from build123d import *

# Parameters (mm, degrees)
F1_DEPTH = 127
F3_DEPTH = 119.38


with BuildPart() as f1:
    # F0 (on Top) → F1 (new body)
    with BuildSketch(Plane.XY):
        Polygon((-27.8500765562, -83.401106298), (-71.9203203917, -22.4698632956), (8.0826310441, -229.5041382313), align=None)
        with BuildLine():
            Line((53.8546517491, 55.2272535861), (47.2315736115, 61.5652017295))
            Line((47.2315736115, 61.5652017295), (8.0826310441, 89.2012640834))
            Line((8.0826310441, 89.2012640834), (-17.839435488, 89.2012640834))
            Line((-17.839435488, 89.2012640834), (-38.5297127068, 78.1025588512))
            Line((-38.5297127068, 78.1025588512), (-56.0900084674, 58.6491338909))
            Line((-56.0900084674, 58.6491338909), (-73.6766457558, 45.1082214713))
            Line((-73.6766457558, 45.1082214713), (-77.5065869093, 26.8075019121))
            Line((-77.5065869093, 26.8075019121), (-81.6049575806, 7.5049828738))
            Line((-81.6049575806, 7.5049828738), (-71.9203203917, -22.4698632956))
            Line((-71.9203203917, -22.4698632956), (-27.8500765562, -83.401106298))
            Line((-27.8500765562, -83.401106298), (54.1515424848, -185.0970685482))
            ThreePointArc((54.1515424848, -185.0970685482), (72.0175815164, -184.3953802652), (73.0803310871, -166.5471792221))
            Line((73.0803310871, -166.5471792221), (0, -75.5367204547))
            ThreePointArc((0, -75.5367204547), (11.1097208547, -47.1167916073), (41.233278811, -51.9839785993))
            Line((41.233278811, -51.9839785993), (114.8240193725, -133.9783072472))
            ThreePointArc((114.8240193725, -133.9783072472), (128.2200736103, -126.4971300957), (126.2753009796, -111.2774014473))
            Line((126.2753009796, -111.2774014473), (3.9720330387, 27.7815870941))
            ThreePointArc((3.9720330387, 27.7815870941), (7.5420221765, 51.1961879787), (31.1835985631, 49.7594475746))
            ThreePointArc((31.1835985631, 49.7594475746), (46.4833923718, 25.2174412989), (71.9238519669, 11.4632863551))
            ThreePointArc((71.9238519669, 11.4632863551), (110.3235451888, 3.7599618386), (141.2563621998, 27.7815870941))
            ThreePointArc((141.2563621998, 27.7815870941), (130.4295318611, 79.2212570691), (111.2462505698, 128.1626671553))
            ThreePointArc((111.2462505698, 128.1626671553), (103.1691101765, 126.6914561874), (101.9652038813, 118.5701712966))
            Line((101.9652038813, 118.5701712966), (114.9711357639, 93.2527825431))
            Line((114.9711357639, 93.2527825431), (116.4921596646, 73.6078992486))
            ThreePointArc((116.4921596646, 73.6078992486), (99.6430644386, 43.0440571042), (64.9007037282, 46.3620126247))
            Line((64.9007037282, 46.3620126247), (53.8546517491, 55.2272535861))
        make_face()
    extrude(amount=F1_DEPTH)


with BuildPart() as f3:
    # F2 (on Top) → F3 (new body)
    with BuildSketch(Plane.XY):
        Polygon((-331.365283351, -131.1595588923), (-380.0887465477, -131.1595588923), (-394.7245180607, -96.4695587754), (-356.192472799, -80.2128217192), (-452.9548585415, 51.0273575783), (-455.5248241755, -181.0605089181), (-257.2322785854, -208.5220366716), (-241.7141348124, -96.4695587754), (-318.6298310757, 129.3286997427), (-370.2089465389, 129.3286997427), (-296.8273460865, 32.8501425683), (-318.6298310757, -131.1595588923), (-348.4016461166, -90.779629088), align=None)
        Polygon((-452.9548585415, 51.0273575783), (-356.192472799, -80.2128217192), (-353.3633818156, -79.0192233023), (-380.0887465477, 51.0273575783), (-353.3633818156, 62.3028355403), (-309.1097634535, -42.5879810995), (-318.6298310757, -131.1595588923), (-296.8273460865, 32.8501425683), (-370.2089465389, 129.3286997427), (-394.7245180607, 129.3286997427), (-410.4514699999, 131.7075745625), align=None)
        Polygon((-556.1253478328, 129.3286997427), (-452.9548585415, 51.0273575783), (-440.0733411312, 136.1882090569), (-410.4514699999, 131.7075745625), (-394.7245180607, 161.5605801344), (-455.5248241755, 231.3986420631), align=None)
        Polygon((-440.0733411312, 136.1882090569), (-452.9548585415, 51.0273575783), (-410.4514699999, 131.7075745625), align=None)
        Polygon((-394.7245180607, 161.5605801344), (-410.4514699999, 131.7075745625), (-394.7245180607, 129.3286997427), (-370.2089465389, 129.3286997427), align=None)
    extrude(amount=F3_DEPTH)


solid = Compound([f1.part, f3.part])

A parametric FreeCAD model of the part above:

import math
import FreeCAD as App
import Part
import Sketcher
Q = App.Units.Quantity


def add_polygon(sketch, points):
    """Adds a closed chain of lines whose ends are joined by coincident constraints."""
    first, n = sketch.GeometryCount, len(points)
    for a, b in zip(points, points[1:] + points[:1]):
        sketch.addGeometry(Part.LineSegment(App.Vector(*a, 0), App.Vector(*b, 0)), False)
    for i in range(n):
        sketch.addConstraint(Sketcher.Constraint("Coincident", first + i, 2, first + (i + 1) % n, 1))

doc = App.newDocument("Part")
body = doc.addObject("PartDesign::Body", "Body")

sketch1 = doc.addObject("Sketcher::SketchObject", "Sketch")
body.addObject(sketch1)
sketch1.AttachmentSupport = (doc.XY_Plane, [""])
sketch1.MapMode = "FlatFace"
sketch1.addGeometry(Part.LineSegment(App.Vector(-72, -22, 0), App.Vector(8, -230, 0)), False)
sketch1.addGeometry(Part.LineSegment(App.Vector(8, -230, 0), App.Vector(-28, -83, 0)), False)
sketch1.addGeometry(Part.LineSegment(App.Vector(-28, -83, 0), App.Vector(54, -185, 0)), False)
sketch1.addGeometry(Part.ArcOfCircle(Part.Circle(App.Vector(63, -175, 0), App.Vector(0, 0, 1), 13), math.radians(-130), math.radians(39)), False)
sketch1.addGeometry(Part.LineSegment(App.Vector(73, -167, 0), App.Vector(0, -76, 0)), False)
sketch1.addGeometry(Part.ArcOfCircle(Part.Circle(App.Vector(23, -68, 0), App.Vector(0, 0, 1), 24), math.radians(42), math.radians(198)), False)
sketch1.addGeometry(Part.LineSegment(App.Vector(41, -52, 0), App.Vector(115, -134, 0)), False)
sketch1.addGeometry(Part.ArcOfCircle(Part.Circle(App.Vector(116, -120, 0), App.Vector(0, 0, 1), 14), math.radians(-95), math.radians(41)), False)
sketch1.addGeometry(Part.LineSegment(App.Vector(126, -111, 0), App.Vector(4, 28, 0)), False)
sketch1.addGeometry(Part.ArcOfCircle(Part.Circle(App.Vector(19, 38, 0), App.Vector(0, 0, 1), 18), math.radians(44), math.radians(214)), False)
sketch1.addGeometry(Part.ArcOfCircle(Part.Circle(App.Vector(85, 66, 0), App.Vector(0, 0, 1), 56), math.radians(-163), math.radians(-104)), False)
sketch1.addGeometry(Part.ArcOfCircle(Part.Circle(App.Vector(100, 50, 0), App.Vector(0, 0, 1), 47), math.radians(-126), math.radians(-28)), False)
sketch1.addGeometry(Part.ArcOfCircle(Part.Circle(App.Vector(-173, -12, 0), App.Vector(0, 0, 1), 317), math.radians(7.13), math.radians(26.16)), False)
sketch1.addGeometry(Part.ArcOfCircle(Part.Circle(App.Vector(108, 122, 0), App.Vector(0, 0, 1), 7), math.radians(65), math.radians(207)), False)
sketch1.addGeometry(Part.LineSegment(App.Vector(102, 119, 0), App.Vector(115, 93, 0)), False)
sketch1.addGeometry(Part.LineSegment(App.Vector(115, 93, 0), App.Vector(116, 74, 0)), False)
sketch1.addGeometry(Part.ArcOfCircle(Part.Circle(App.Vector(85, 71, 0), App.Vector(0, 0, 1), 32), math.radians(-129), math.radians(4)), False)
sketch1.addGeometry(Part.LineSegment(App.Vector(65, 46, 0), App.Vector(54, 55, 0)), False)
sketch1.addGeometry(Part.LineSegment(App.Vector(54, 55, 0), App.Vector(47, 62, 0)), False)
sketch1.addGeometry(Part.LineSegment(App.Vector(47, 62, 0), App.Vector(8, 89, 0)), False)
sketch1.addGeometry(Part.LineSegment(App.Vector(8, 89, 0), App.Vector(-18, 89, 0)), False)
sketch1.addGeometry(Part.LineSegment(App.Vector(-18, 89, 0), App.Vector(-39, 78, 0)), False)
sketch1.addGeometry(Part.LineSegment(App.Vector(-39, 78, 0), App.Vector(-56, 59, 0)), False)
sketch1.addGeometry(Part.LineSegment(App.Vector(-56, 59, 0), App.Vector(-74, 45, 0)), False)
sketch1.addGeometry(Part.LineSegment(App.Vector(-74, 45, 0), App.Vector(-78, 27, 0)), False)
sketch1.addGeometry(Part.LineSegment(App.Vector(-78, 27, 0), App.Vector(-82, 8, 0)), False)
sketch1.addGeometry(Part.LineSegment(App.Vector(-82, 8, 0), App.Vector(-72, -22, 0)), False)
sketch1.addConstraint(Sketcher.Constraint("Coincident", 0, 2, 1, 1))
sketch1.addConstraint(Sketcher.Constraint("Coincident", 1, 2, 2, 1))
sketch1.addConstraint(Sketcher.Constraint("Coincident", 2, 2, 3, 1))
sketch1.addConstraint(Sketcher.Constraint("Tangent", 3, 2, 4, 1))
sketch1.addConstraint(Sketcher.Constraint("Coincident", 4, 2, 5, 2))
sketch1.addConstraint(Sketcher.Constraint("Tangent", 5, 1, 6, 1))
sketch1.addConstraint(Sketcher.Constraint("Coincident", 6, 2, 7, 1))
sketch1.addConstraint(Sketcher.Constraint("Tangent", 7, 2, 8, 1))
sketch1.addConstraint(Sketcher.Constraint("Coincident", 8, 2, 9, 2))
sketch1.addConstraint(Sketcher.Constraint("Coincident", 9, 1, 10, 1))
sketch1.addConstraint(Sketcher.Constraint("Coincident", 10, 2, 11, 1))
sketch1.addConstraint(Sketcher.Constraint("Coincident", 11, 2, 12, 1))
sketch1.addConstraint(Sketcher.Constraint("Coincident", 12, 2, 13, 1))
sketch1.addConstraint(Sketcher.Constraint("Tangent", 13, 2, 14, 1))
sketch1.addConstraint(Sketcher.Constraint("Coincident", 14, 2, 15, 1))
sketch1.addConstraint(Sketcher.Constraint("Tangent", 15, 2, 16, 2))
sketch1.addConstraint(Sketcher.Constraint("Tangent", 16, 1, 17, 1))
sketch1.addConstraint(Sketcher.Constraint("Coincident", 17, 2, 18, 1))
sketch1.addConstraint(Sketcher.Constraint("Coincident", 18, 2, 19, 1))
sketch1.addConstraint(Sketcher.Constraint("Coincident", 19, 2, 20, 1))
sketch1.addConstraint(Sketcher.Constraint("Coincident", 20, 2, 21, 1))
sketch1.addConstraint(Sketcher.Constraint("Coincident", 21, 2, 22, 1))
sketch1.addConstraint(Sketcher.Constraint("Coincident", 22, 2, 23, 1))
sketch1.addConstraint(Sketcher.Constraint("Coincident", 23, 2, 24, 1))
sketch1.addConstraint(Sketcher.Constraint("Coincident", 24, 2, 25, 1))
sketch1.addConstraint(Sketcher.Constraint("Coincident", 25, 2, 26, 1))
sketch1.addConstraint(Sketcher.Constraint("Coincident", 26, 2, 0, 1))
sketch1.addConstraint(Sketcher.Constraint("Horizontal", 20))
sketch1.addConstraint(Sketcher.Constraint("PointOnObject", 4, 2, -2))
sketch1.addConstraint(Sketcher.Constraint("Horizontal", 8, 2, 11, 2))
sketch1.addConstraint(Sketcher.Constraint("Vertical", 0, 2, 19, 2))
sketch1.addConstraint(Sketcher.Constraint("Radius", 12, Q("316.818498 mm")))
sketch1.addConstraint(Sketcher.Constraint("DistanceY", 7, 2, -1, 1, Q("4.3810001 in")))
sketch1.addConstraint(Sketcher.Constraint("Radius", 11, Q("47.063272 mm")))
sketch1.addConstraint(Sketcher.Constraint("Radius", 13, Q("7.047951 mm")))
sketch1.addConstraint(Sketcher.Constraint("Radius", 3, Q("13.316237 mm")))
sketch1.addConstraint(Sketcher.Constraint("Radius", 5, Q("24.289102 mm")))
sketch1.addConstraint(Sketcher.Constraint("Radius", 7, Q("13.701564 mm")))
sketch1.addConstraint(Sketcher.Constraint("Radius", 9, Q("17.561286 mm")))
sketch1.addConstraint(Sketcher.Constraint("Radius", 10, Q("56.491066 mm")))
sketch1.addConstraint(Sketcher.Constraint("Radius", 16, Q("31.789025 mm")))
sketch1.addConstraint(Sketcher.Constraint("DistanceX", 16, 1, 11, 3, Q("1.3637998 in")))
sketch1.addConstraint(Sketcher.Constraint("DistanceX", -1, 1, 7, 2, Q("126.275301 mm")))
sketch1.addConstraint(Sketcher.Constraint("DistanceX", -1, 1, 9, 1, Q("31.183599 mm")))
sketch1.addConstraint(Sketcher.Constraint("DistanceY", -1, 1, 15, 2, Q("73.607899 mm")))
sketch1.addConstraint(Sketcher.Constraint("DistanceY", -1, 1, 18, 2, Q("61.565202 mm")))
sketch1.addConstraint(Sketcher.Constraint("DistanceY", -1, 1, 24, 2, Q("26.807502 mm")))
sketch1.addConstraint(Sketcher.Constraint("DistanceX", 12, 3, 3, 3, Q("235.811398 mm")))
sketch1.addConstraint(Sketcher.Constraint("DistanceX", 9, 3, 13, 3, Q("89.6581 mm")))
sketch1.addConstraint(Sketcher.Constraint("DistanceX", 0, 2, 3, 2, Q("64.9977 mm")))
sketch1.addConstraint(Sketcher.Constraint("DistanceY", 9, 1, 16, 3, Q("21.3945 mm")))
sketch1.addConstraint(Sketcher.Constraint("DistanceX", 10, 3, 11, 2, Q("56.0815 mm")))
sketch1.addConstraint(Sketcher.Constraint("DistanceY", 10, 2, 11, 2, Q("16.318301 mm")))
sketch1.addConstraint(Sketcher.Constraint("DistanceY", 9, 3, 19, 2, Q("51.666899 mm")))
sketch1.addConstraint(Sketcher.Constraint("DistanceX", 8, 2, 19, 2, Q("4.110598 mm")))
sketch1.addConstraint(Sketcher.Constraint("Distance", 0, Q("221.954192 mm")))
sketch1.addConstraint(Sketcher.Constraint("Distance", 2, Q("130.638181 mm")))
sketch1.addConstraint(Sketcher.Constraint("Distance", 6, Q("110.175619 mm")))
sketch1.addConstraint(Sketcher.Constraint("Distance", 8, Q("185.19042 mm")))
sketch1.addConstraint(Sketcher.Constraint("Distance", 15, Q("19.703679 mm")))
sketch1.addConstraint(Sketcher.Constraint("Distance", 19, Q("47.920681 mm")))
sketch1.addConstraint(Sketcher.Constraint("DistanceX", 20, 2, 20, 1, Q("25.922067 mm")))
sketch1.addConstraint(Sketcher.Constraint("DistanceX", -1, 1, 3, 3, Q("62.69725 mm")))
sketch1.addConstraint(Sketcher.Constraint("DistanceY", 3, 3, -1, 1, Q("174.884672 mm")))
sketch1.addConstraint(Sketcher.Constraint("DistanceX", -1, 1, 5, 3, Q("23.156969 mm")))
sketch1.addConstraint(Sketcher.Constraint("DistanceY", 5, 3, -1, 1, Q("68.20765 mm")))
sketch1.addConstraint(Sketcher.Constraint("DistanceX", -1, 1, 11, 3, Q("99.541219 mm")))
sketch1.addConstraint(Sketcher.Constraint("DistanceY", -1, 1, 13, 3, Q("121.79071 mm")))
sketch1.addConstraint(Sketcher.Constraint("DistanceY", 0, 2, -1, 1, Q("229.504138 mm")))
sketch1.addConstraint(Sketcher.Constraint("DistanceY", 2, 2, -1, 1, Q("185.097069 mm")))
sketch1.addConstraint(Sketcher.Constraint("DistanceX", -1, 1, 10, 2, Q("71.923852 mm")))
sketch1.addConstraint(Sketcher.Constraint("DistanceY", -1, 1, 13, 2, Q("118.570171 mm")))
sketch1.addConstraint(Sketcher.Constraint("DistanceX", -1, 1, 17, 2, Q("53.854652 mm")))
sketch1.addConstraint(Sketcher.Constraint("DistanceY", -1, 1, 21, 2, Q("78.102559 mm")))
sketch1.addConstraint(Sketcher.Constraint("DistanceX", 22, 2, -1, 1, Q("56.090008 mm")))
sketch1.addConstraint(Sketcher.Constraint("DistanceY", -1, 1, 23, 2, Q("45.108221 mm")))
sketch1.addConstraint(Sketcher.Constraint("DistanceX", 26, 2, -1, 1, Q("71.92032 mm")))
sketch1.addConstraint(Sketcher.Constraint("DistanceX", 1, 2, 9, 3, Q("46.42629 mm")))
sketch1.addConstraint(Sketcher.Constraint("DistanceX", 21, 2, 9, 1, Q("69.713311 mm")))
sketch1.addConstraint(Sketcher.Constraint("DistanceY", 22, 2, 20, 2, Q("30.55213 mm")))
sketch1.addConstraint(Sketcher.Constraint("DistanceX", 23, 2, 20, 2, Q("55.83721 mm")))
sketch1.addConstraint(Sketcher.Constraint("DistanceX", 24, 2, 23, 2, Q("3.829941 mm")))
sketch1.addConstraint(Sketcher.Constraint("DistanceX", 25, 2, 24, 2, Q("4.098371 mm")))
sketch1.addConstraint(Sketcher.Constraint("DistanceY", 25, 2, 24, 2, Q("19.302519 mm")))
pad1 = doc.addObject("PartDesign::Pad", "Pad")
body.addObject(pad1)
pad1.Profile = sketch1
pad1.Length = Q("5 in")
body2 = doc.addObject("PartDesign::Body", "Body001")

sketch2 = doc.addObject("Sketcher::SketchObject", "Sketch001")
body2.addObject(sketch2)
sketch2.AttachmentSupport = (doc.getObject("XY_Plane001"), [""])
sketch2.MapMode = "FlatFace"
add_polygon(sketch2, [(-453, 51), (-455.5, -181.1), (-257.2, -208.5), (-241.7, -96.5), (-318.6, 129.3), (-370.2, 129.3), (-394.7, 161.6), (-455.5, 231.4), (-556.1, 129.3)])
add_polygon(sketch2, [(-331.4, -131.2), (-380.1, -131.2), (-394.7, -96.5), (-356.2, -80.2), (-353.4, -79), (-380.1, 51), (-353.4, 62.3), (-309.1, -42.6), (-318.6, -131.2), (-348.4, -90.8)])
sketch2.addConstraint(Sketcher.Constraint("Horizontal", 4))
sketch2.addConstraint(Sketcher.Constraint("Horizontal", 9))
sketch2.addConstraint(Sketcher.Constraint("Perpendicular", 1, 2))
sketch2.addConstraint(Sketcher.Constraint("Perpendicular", 10, 11))
sketch2.addConstraint(Sketcher.Constraint("Parallel", 11, 12))
sketch2.addConstraint(Sketcher.Constraint("Parallel", 12, 14))
sketch2.addConstraint(Sketcher.Constraint("Perpendicular", 14, 15))
sketch2.addConstraint(Sketcher.Constraint("Parallel", 15, 18))
sketch2.addConstraint(Sketcher.Constraint("Horizontal", 4, 2, 7, 2))
sketch2.addConstraint(Sketcher.Constraint("Horizontal", 2, 2, 10, 2))
sketch2.addConstraint(Sketcher.Constraint("Horizontal", 8, 2, 13, 2))
sketch2.addConstraint(Sketcher.Constraint("Horizontal", 9, 2, 16, 2))
sketch2.addConstraint(Sketcher.Constraint("Vertical", 0, 2, 6, 2))
sketch2.addConstraint(Sketcher.Constraint("Vertical", 5, 2, 10, 2))
sketch2.addConstraint(Sketcher.Constraint("Vertical", 9, 2, 13, 2))
sketch2.addConstraint(Sketcher.Constraint("Vertical", 12, 2, 14, 2))
sketch2.addConstraint(Sketcher.Constraint("Vertical", 3, 2, 16, 2))
sketch2.addConstraint(Sketcher.Constraint("DistanceY", -1, 1, 3, 2, Q("129.3287 mm")))
sketch2.addConstraint(Sketcher.Constraint("DistanceY", 2, 2, 6, 2, Q("327.868201 mm")))
sketch2.addConstraint(Sketcher.Constraint("DistanceX", 7, 2, 4, 2, Q("185.916401 mm")))
sketch2.addConstraint(Sketcher.Constraint("DistanceY", 9, 2, 2, 2, Q("34.69 mm")))
sketch2.addConstraint(Sketcher.Constraint("DistanceX", 9, 2, 4, 2, Q("9.8798 mm")))
sketch2.addConstraint(Sketcher.Constraint("DistanceY", 11, 2, 12, 2, Q("1.193598 mm")))
sketch2.addConstraint(Sketcher.Constraint("DistanceX", 9, 2, 17, 2, Q("31.6871 mm")))
sketch2.addConstraint(Sketcher.Constraint("DistanceX", 12, 2, 18, 2, Q("21.998098 mm")))
sketch2.addConstraint(Sketcher.Constraint("Distance", 3, Q("238.539049 mm")))
sketch2.addConstraint(Sketcher.Constraint("Distance", 5, Q("40.49577 mm")))
sketch2.addConstraint(Sketcher.Constraint("Distance", 6, Q("92.59607 mm")))
sketch2.addConstraint(Sketcher.Constraint("Distance", 16, Q("89.081738 mm")))
sketch2.addConstraint(Sketcher.Constraint("DistanceX", 4, 2, 4, 1, Q("51.579115 mm")))
sketch2.addConstraint(Sketcher.Constraint("DistanceX", 9, 2, 9, 1, Q("48.723463 mm")))
sketch2.addConstraint(Sketcher.Constraint("DistanceY", 0, 2, -1, 1, Q("181.060509 mm")))
sketch2.addConstraint(Sketcher.Constraint("DistanceX", 1, 2, -1, 1, Q("257.232279 mm")))
sketch2.addConstraint(Sketcher.Constraint("DistanceY", 2, 2, -1, 1, Q("96.469559 mm")))
sketch2.addConstraint(Sketcher.Constraint("DistanceX", 3, 2, -1, 1, Q("318.629831 mm")))
sketch2.addConstraint(Sketcher.Constraint("DistanceX", 5, 2, -1, 1, Q("394.724518 mm")))
sketch2.addConstraint(Sketcher.Constraint("DistanceX", 8, 2, -1, 1, Q("452.954859 mm")))
sketch2.addConstraint(Sketcher.Constraint("DistanceY", 15, 2, -1, 1, Q("42.587981 mm")))
pad2 = doc.addObject("PartDesign::Pad", "Pad001")
body2.addObject(pad2)
pad2.Profile = sketch2
pad2.Length = Q("4.7 in")

doc.recompute()
